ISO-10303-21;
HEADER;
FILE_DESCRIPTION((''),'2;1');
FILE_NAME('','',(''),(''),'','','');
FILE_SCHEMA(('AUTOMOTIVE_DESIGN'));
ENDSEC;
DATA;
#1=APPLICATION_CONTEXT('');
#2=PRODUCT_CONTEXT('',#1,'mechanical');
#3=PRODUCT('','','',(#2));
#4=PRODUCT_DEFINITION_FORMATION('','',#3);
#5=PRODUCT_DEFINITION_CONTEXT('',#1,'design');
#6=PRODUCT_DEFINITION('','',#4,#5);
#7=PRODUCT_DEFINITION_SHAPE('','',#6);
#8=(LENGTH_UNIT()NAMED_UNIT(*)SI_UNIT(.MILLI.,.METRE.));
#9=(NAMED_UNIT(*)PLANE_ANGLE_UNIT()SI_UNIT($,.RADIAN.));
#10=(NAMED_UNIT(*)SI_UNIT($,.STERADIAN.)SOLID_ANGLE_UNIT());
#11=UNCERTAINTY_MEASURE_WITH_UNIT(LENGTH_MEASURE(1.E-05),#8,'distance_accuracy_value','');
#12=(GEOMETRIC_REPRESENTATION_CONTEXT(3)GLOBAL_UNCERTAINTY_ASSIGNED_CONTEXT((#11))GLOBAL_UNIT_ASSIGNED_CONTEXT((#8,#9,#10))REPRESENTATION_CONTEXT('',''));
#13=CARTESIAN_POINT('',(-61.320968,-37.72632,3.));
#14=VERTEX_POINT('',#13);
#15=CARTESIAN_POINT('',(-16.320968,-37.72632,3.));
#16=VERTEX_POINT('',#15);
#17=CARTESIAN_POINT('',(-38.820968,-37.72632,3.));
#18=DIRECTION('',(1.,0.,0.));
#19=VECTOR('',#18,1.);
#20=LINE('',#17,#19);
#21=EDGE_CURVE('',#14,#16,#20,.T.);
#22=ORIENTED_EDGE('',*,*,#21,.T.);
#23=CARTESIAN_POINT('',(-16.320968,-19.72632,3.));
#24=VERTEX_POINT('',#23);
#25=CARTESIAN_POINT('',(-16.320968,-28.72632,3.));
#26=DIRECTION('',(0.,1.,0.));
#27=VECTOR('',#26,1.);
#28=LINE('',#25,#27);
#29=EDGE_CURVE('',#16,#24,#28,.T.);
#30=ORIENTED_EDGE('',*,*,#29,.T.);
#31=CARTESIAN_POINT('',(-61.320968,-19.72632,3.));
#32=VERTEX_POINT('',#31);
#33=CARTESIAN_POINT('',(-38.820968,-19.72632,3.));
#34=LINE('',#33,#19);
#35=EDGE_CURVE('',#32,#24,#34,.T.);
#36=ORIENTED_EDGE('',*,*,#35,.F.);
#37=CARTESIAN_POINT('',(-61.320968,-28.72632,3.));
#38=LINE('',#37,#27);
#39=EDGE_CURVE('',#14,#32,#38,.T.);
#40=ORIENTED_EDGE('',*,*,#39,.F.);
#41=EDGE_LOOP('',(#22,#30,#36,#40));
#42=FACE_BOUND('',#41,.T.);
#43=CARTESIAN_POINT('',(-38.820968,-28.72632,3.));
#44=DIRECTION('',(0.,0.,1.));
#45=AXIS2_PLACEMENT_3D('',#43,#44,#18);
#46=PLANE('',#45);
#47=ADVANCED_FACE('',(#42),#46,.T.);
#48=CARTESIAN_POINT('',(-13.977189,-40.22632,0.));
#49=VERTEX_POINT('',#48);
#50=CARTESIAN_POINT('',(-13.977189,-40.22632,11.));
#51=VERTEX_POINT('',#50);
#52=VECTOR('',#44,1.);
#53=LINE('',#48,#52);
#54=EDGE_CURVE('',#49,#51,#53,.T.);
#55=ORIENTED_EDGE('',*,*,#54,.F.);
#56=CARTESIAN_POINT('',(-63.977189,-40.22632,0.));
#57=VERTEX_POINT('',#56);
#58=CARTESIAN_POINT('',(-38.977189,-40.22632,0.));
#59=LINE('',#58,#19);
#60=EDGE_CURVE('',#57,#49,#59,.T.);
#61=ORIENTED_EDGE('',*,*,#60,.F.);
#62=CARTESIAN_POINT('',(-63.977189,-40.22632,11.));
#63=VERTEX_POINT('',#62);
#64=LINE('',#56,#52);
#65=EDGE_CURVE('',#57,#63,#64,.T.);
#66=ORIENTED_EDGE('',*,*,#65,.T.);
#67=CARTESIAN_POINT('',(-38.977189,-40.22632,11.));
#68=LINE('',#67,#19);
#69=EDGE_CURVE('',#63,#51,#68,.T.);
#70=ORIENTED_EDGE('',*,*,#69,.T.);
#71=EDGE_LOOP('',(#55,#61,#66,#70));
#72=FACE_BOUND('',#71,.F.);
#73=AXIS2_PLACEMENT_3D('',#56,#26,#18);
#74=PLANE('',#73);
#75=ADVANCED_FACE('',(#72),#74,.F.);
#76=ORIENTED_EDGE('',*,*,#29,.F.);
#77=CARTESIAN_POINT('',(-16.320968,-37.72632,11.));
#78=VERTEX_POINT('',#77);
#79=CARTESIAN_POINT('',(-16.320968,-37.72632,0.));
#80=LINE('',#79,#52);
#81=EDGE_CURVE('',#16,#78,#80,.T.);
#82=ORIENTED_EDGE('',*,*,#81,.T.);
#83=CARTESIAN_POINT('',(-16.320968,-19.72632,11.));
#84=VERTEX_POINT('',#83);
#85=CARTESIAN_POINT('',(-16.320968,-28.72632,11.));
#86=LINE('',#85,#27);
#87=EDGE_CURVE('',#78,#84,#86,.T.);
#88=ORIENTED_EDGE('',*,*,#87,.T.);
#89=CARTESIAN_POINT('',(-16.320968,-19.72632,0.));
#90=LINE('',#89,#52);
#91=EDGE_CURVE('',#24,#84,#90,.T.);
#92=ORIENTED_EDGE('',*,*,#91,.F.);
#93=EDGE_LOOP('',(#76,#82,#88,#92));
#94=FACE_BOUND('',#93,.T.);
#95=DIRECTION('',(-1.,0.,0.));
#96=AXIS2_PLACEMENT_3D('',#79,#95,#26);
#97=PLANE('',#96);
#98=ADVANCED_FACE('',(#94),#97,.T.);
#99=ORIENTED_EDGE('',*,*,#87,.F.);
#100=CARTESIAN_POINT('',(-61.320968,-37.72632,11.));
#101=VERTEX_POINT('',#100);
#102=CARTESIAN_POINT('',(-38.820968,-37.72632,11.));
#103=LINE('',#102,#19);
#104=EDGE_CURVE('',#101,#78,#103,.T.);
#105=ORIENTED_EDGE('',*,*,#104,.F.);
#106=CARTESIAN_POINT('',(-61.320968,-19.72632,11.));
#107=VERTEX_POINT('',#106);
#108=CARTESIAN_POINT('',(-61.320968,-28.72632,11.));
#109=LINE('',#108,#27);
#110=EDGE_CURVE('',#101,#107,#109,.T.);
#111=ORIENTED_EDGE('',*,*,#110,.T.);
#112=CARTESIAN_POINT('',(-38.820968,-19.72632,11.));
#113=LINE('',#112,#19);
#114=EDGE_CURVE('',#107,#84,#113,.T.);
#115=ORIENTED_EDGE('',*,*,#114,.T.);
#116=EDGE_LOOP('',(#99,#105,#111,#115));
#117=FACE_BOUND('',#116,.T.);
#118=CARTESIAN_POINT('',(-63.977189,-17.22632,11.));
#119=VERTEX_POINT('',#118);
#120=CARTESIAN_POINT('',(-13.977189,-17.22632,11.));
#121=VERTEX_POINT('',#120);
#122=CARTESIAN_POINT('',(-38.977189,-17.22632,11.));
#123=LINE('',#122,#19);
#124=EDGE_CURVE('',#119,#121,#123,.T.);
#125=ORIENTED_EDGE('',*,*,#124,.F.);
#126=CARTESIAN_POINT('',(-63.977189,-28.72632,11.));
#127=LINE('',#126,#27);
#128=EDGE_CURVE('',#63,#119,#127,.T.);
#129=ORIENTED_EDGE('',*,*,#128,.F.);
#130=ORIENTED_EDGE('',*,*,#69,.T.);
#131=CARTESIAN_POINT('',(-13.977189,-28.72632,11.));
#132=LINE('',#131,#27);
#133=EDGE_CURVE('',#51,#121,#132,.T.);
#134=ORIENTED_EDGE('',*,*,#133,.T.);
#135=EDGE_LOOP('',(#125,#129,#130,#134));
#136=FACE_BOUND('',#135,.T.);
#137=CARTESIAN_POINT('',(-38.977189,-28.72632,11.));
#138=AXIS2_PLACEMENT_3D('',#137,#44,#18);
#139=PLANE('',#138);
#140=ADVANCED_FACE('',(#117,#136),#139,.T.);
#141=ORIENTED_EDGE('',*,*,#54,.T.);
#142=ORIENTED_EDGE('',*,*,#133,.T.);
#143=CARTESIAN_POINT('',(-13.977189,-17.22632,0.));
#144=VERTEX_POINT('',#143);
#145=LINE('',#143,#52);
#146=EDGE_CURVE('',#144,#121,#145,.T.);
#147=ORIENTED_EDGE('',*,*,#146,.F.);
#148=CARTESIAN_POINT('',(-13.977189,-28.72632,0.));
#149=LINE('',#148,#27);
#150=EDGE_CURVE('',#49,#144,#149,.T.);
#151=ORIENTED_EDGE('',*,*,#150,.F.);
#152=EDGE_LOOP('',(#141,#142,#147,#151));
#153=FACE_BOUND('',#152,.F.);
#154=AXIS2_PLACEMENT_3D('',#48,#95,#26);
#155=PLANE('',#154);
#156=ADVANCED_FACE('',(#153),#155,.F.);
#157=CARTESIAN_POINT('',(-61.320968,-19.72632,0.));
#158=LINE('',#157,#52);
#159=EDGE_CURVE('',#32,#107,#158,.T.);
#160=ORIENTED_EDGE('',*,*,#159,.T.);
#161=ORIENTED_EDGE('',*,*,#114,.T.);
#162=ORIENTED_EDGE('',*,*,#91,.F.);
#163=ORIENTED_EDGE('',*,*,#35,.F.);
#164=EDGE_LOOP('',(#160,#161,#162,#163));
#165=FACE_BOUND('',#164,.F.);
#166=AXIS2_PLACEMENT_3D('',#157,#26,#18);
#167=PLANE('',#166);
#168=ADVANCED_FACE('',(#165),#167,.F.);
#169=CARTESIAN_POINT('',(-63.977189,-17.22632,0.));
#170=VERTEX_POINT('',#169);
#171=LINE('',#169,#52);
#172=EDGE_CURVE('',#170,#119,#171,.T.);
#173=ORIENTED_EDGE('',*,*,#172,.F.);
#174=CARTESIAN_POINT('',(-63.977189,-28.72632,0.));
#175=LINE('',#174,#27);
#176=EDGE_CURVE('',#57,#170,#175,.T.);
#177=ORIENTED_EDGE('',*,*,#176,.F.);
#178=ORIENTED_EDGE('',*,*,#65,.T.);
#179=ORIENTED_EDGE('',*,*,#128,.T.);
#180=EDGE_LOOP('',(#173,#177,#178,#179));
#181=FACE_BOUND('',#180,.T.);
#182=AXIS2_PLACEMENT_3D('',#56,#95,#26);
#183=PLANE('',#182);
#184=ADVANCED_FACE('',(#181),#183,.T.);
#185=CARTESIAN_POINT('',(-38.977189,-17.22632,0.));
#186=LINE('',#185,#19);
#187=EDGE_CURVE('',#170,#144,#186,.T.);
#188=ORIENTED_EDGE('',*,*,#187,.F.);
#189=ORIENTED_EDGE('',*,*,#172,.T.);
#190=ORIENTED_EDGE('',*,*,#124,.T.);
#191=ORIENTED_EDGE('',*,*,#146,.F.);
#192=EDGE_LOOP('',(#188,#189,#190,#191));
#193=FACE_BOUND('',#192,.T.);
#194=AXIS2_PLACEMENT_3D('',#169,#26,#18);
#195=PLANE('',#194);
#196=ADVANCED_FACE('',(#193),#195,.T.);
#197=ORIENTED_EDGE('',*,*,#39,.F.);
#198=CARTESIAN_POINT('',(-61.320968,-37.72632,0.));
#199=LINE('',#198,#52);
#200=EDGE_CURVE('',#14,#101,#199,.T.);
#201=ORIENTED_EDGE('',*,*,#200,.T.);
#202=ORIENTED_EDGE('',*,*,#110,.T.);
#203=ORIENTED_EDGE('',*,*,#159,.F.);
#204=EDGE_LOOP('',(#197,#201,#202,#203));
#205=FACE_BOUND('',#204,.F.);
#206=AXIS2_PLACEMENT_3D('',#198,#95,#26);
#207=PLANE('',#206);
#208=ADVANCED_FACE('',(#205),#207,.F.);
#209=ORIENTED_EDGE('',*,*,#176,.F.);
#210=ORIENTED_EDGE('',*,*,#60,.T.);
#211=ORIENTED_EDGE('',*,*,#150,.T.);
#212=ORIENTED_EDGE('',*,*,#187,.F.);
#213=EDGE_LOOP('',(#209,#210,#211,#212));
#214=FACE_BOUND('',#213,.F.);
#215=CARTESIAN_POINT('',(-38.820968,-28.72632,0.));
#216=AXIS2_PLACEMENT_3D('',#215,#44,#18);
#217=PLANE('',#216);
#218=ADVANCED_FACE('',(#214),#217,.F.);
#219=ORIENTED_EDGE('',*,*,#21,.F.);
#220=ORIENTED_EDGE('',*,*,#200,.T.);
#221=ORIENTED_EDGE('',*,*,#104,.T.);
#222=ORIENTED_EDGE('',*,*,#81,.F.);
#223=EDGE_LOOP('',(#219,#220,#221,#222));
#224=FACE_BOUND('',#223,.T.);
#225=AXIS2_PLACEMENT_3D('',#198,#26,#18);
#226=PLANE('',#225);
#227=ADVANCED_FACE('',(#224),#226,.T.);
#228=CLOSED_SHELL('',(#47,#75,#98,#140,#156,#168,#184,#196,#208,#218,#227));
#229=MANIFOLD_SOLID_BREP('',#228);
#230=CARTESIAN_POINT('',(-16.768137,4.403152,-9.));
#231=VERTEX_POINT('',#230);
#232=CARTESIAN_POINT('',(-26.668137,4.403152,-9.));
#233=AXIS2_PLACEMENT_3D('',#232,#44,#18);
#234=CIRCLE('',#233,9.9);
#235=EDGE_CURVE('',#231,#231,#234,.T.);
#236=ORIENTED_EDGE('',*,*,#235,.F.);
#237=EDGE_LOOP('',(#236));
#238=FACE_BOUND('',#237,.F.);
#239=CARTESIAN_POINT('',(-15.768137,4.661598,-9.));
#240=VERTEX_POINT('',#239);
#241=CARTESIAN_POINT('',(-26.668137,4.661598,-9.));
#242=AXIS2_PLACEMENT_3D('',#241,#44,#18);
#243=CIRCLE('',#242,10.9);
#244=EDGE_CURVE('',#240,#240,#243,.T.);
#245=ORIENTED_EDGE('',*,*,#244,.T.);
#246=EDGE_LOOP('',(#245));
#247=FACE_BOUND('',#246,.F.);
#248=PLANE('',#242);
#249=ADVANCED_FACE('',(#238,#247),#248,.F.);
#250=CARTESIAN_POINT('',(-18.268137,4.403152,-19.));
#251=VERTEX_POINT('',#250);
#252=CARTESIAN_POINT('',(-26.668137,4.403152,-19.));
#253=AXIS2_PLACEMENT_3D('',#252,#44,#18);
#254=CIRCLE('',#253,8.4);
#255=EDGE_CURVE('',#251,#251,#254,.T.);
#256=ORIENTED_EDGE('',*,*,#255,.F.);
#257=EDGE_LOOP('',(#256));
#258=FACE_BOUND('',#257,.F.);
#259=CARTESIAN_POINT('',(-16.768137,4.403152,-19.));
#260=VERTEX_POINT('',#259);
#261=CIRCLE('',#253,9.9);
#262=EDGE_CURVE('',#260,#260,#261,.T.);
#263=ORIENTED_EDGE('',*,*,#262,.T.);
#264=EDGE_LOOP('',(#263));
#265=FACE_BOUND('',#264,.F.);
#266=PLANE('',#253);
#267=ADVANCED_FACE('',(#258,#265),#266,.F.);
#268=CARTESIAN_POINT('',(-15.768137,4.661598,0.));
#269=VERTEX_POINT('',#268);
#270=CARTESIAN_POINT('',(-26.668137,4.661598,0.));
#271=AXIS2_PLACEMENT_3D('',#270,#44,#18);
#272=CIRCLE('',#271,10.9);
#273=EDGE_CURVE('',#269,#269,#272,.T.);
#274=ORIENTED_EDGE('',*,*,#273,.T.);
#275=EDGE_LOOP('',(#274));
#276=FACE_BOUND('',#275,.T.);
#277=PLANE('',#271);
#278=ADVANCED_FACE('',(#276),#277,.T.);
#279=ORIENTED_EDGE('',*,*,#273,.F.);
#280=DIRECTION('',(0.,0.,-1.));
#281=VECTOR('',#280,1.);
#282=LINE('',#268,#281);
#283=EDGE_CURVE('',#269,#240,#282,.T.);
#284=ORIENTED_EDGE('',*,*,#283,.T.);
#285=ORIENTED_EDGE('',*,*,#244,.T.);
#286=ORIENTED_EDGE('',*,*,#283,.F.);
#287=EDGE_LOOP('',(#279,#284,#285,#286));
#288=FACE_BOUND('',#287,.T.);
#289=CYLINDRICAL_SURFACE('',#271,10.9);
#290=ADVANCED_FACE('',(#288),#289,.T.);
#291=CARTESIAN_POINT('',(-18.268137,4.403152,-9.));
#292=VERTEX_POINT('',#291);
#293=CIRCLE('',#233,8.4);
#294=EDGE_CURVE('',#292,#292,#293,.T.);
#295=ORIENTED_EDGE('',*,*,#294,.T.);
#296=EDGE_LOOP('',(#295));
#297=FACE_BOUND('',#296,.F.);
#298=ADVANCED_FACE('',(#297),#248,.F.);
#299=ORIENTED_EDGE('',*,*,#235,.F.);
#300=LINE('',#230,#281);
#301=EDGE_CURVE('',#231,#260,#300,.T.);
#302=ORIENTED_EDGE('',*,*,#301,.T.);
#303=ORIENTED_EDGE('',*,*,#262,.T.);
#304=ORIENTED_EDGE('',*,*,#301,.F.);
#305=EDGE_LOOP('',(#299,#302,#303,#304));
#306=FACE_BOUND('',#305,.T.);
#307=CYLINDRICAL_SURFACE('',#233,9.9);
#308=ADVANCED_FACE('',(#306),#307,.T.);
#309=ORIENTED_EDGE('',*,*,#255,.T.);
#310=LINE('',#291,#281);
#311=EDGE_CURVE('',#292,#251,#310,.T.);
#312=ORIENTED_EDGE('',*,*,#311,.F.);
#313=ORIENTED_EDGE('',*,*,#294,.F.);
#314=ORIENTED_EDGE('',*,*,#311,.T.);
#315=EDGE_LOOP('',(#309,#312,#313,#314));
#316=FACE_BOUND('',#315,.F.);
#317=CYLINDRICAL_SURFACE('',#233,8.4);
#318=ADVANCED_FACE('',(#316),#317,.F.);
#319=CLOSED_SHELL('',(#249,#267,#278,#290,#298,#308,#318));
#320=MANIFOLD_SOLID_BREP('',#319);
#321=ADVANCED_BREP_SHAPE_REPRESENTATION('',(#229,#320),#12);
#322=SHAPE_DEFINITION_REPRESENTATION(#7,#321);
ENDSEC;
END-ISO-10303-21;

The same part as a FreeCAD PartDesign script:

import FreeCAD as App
import Part
import Sketcher

V = App.Vector

doc = App.newDocument("Part")
body = doc.addObject("PartDesign::Body", "Body")

# Sketch on XY plane
sketch1 = body.newObject("Sketcher::SketchObject", "Sketch")
sketch1.AttachmentSupport = (doc.getObject("XY_Plane"), [""])
sketch1.MapMode = "FlatFace"
sketch1.addGeometry(Part.Circle(V(-26.668137, 4.661598, 0), V(0, 0, 1), 10.9), False)
sketch1.addConstraint([
    Sketcher.Constraint("Diameter", 0, 21.8),
    Sketcher.Constraint("DistanceX", 0, 3, -1, 1, 26.668137),
    Sketcher.Constraint("DistanceY", -1, 1, 0, 3, 4.661598),
])

# Sketch on XY plane
sketch2 = body.newObject("Sketcher::SketchObject", "Sketch001")
sketch2.AttachmentSupport = (doc.getObject("XY_Plane"), [""])
sketch2.MapMode = "FlatFace"
sketch2.AttachmentOffset = App.Placement(V(0, 0, -2), App.Rotation())
sketch2.addGeometry(Part.Circle(V(-26.668137, 4.342747, 0), V(0, 0, 1), 1), False)
sketch2.addConstraint([
    Sketcher.Constraint("Diameter", 0, 2.0),
    Sketcher.Constraint("DistanceX", 0, 3, -1, 1, 26.668137),
    Sketcher.Constraint("DistanceY", -1, 1, 0, 3, 4.342747),
])

additiveloft = body.newObject("PartDesign::AdditiveLoft", "AdditiveLoft")
additiveloft.Profile = sketch1
additiveloft.Sections = [sketch2]

# Sketch on XY plane
sketch3 = body.newObject("Sketcher::SketchObject", "Sketch002")
sketch3.AttachmentSupport = (doc.getObject("XY_Plane"), [""])
sketch3.MapMode = "FlatFace"
sketch3.addGeometry(Part.Circle(V(-26.668137, 4.661598, 0), V(0, 0, 1), 10.9), False)
sketch3.addConstraint([
    Sketcher.Constraint("Diameter", 0, 21.8),
    Sketcher.Constraint("DistanceX", 0, 3, -1, 1, 26.668137),
    Sketcher.Constraint("DistanceY", -1, 1, 0, 3, 4.661598),
])
pad1 = body.newObject("PartDesign::Pad", "Pad")
pad1.Profile = sketch3
pad1.Length = 9
pad1.Reversed = True

# Sketch on XY plane
sketch4 = body.newObject("Sketcher::SketchObject", "Sketch003")
sketch4.AttachmentSupport = (doc.getObject("XY_Plane"), [""])
sketch4.MapMode = "FlatFace"
sketch4.AttachmentOffset = App.Placement(V(0, 0, -9), App.Rotation())
sketch4.addGeometry([
    Part.Circle(V(-26.668137, 4.403152, 0), V(0, 0, 1), 9.9),
    Part.Circle(V(-26.668137, 4.403152, 0), V(0, 0, 1), 8.4),
], False)
sketch4.addConstraint([
    Sketcher.Constraint("Coincident", 1, 3, 0, 3),
    Sketcher.Constraint("Diameter", 0, 19.8),
    Sketcher.Constraint("Diameter", 1, 16.8),
    Sketcher.Constraint("DistanceX", 0, 3, -1, 1, 26.668137),
    Sketcher.Constraint("DistanceY", -1, 1, 0, 3, 4.403152),
])
pad2 = body.newObject("PartDesign::Pad", "Pad001")
pad2.Profile = sketch4
pad2.Length = 10
pad2.Reversed = True
body2 = doc.addObject("PartDesign::Body", "Body001")

# Sketch on XY plane
sketch5 = body2.newObject("Sketcher::SketchObject", "Sketch004")
sketch5.AttachmentSupport = (doc.getObject("XY_Plane001"), [""])
sketch5.MapMode = "FlatFace"
sketch5.addGeometry([
    Part.LineSegment(V(-63.977189, -17.22632, 0), V(-63.977189, -40.22632, 0)),  # 0
    Part.LineSegment(V(-63.977189, -40.22632, 0), V(-13.977189, -40.22632, 0)),  # 1
    Part.LineSegment(V(-13.977189, -40.22632, 0), V(-13.977189, -17.22632, 0)),  # 2
    Part.LineSegment(V(-13.977189, -17.22632, 0), V(-63.977189, -17.22632, 0)),  # 3
    Part.LineSegment(V(-16.320968, -37.72632, 0), V(-61.320968, -37.72632, 0)),  # 4
    Part.LineSegment(V(-61.320968, -37.72632, 0), V(-61.320968, -19.72632, 0)),  # 5
    Part.LineSegment(V(-61.320968, -19.72632, 0), V(-16.320968, -19.72632, 0)),  # 6
    Part.LineSegment(V(-16.320968, -19.72632, 0), V(-16.320968, -37.72632, 0)),  # 7
], False)
sketch5.addConstraint([
    Sketcher.Constraint("Coincident", 0, 2, 1, 1),
    Sketcher.Constraint("Coincident", 1, 2, 2, 1),
    Sketcher.Constraint("Coincident", 2, 2, 3, 1),
    Sketcher.Constraint("Coincident", 3, 2, 0, 1),
    Sketcher.Constraint("Coincident", 4, 2, 5, 1),
    Sketcher.Constraint("Coincident", 5, 2, 6, 1),
    Sketcher.Constraint("Coincident", 6, 2, 7, 1),
    Sketcher.Constraint("Coincident", 7, 2, 4, 1),
    Sketcher.Constraint("Vertical", 0),
    Sketcher.Constraint("Horizontal", 1),
    Sketcher.Constraint("Vertical", 2),
    Sketcher.Constraint("Horizontal", 3),
    Sketcher.Constraint("Horizontal", 4),
    Sketcher.Constraint("Vertical", 5),
    Sketcher.Constraint("Horizontal", 6),
    Sketcher.Constraint("Vertical", 7),
    Sketcher.Constraint("DistanceX", 1, 1, 1, 2, 50.0),
    Sketcher.Constraint("DistanceX", 4, 2, 4, 1, 45.0),
    Sketcher.Constraint("DistanceY", 0, 2, 0, 1, 23.0),
    Sketcher.Constraint("DistanceY", 5, 1, 5, 2, 18.0),
    Sketcher.Constraint("DistanceY", 0, 2, 4, 2, 2.5),
    Sketcher.Constraint("DistanceX", 0, 2, -1, 1, 63.977189),
    Sketcher.Constraint("DistanceY", 0, 2, -1, 1, 40.22632),
    Sketcher.Constraint("DistanceX", 6, 2, -1, 1, 16.320968),
])
pad3 = body2.newObject("PartDesign::Pad", "Pad002")
pad3.Profile = sketch5
pad3.Length = 11

# Sketch on XY plane
sketch6 = body2.newObject("Sketcher::SketchObject", "Sketch005")
sketch6.AttachmentSupport = (doc.getObject("XY_Plane001"), [""])
sketch6.MapMode = "FlatFace"
sketch6.addGeometry([
    Part.LineSegment(V(-61.320968, -19.72632, 0), V(-61.320968, -37.72632, 0)),
    Part.LineSegment(V(-61.320968, -37.72632, 0), V(-16.320968, -37.72632, 0)),
    Part.LineSegment(V(-16.320968, -37.72632, 0), V(-16.320968, -19.72632, 0)),
    Part.LineSegment(V(-16.320968, -19.72632, 0), V(-61.320968, -19.72632, 0)),
], False)
sketch6.addConstraint([
    Sketcher.Constraint("Coincident", 0, 2, 1, 1),
    Sketcher.Constraint("Coincident", 1, 2, 2, 1),
    Sketcher.Constraint("Coincident", 2, 2, 3, 1),
    Sketcher.Constraint("Coincident", 3, 2, 0, 1),
    Sketcher.Constraint("Vertical", 0),
    Sketcher.Constraint("Horizontal", 1),
    Sketcher.Constraint("Vertical", 2),
    Sketcher.Constraint("Horizontal", 3),
    Sketcher.Constraint("DistanceX", 1, 1, 1, 2, 45.0),
    Sketcher.Constraint("DistanceY", 0, 2, 0, 1, 18.0),
    Sketcher.Constraint("DistanceY", 0, 2, -1, 1, 37.72632),
    Sketcher.Constraint("DistanceX", 1, 2, -1, 1, 16.320968),
])
pad4 = body2.newObject("PartDesign::Pad", "Pad003")
pad4.Profile = sketch6
pad4.Length = 3

doc.recompute()
